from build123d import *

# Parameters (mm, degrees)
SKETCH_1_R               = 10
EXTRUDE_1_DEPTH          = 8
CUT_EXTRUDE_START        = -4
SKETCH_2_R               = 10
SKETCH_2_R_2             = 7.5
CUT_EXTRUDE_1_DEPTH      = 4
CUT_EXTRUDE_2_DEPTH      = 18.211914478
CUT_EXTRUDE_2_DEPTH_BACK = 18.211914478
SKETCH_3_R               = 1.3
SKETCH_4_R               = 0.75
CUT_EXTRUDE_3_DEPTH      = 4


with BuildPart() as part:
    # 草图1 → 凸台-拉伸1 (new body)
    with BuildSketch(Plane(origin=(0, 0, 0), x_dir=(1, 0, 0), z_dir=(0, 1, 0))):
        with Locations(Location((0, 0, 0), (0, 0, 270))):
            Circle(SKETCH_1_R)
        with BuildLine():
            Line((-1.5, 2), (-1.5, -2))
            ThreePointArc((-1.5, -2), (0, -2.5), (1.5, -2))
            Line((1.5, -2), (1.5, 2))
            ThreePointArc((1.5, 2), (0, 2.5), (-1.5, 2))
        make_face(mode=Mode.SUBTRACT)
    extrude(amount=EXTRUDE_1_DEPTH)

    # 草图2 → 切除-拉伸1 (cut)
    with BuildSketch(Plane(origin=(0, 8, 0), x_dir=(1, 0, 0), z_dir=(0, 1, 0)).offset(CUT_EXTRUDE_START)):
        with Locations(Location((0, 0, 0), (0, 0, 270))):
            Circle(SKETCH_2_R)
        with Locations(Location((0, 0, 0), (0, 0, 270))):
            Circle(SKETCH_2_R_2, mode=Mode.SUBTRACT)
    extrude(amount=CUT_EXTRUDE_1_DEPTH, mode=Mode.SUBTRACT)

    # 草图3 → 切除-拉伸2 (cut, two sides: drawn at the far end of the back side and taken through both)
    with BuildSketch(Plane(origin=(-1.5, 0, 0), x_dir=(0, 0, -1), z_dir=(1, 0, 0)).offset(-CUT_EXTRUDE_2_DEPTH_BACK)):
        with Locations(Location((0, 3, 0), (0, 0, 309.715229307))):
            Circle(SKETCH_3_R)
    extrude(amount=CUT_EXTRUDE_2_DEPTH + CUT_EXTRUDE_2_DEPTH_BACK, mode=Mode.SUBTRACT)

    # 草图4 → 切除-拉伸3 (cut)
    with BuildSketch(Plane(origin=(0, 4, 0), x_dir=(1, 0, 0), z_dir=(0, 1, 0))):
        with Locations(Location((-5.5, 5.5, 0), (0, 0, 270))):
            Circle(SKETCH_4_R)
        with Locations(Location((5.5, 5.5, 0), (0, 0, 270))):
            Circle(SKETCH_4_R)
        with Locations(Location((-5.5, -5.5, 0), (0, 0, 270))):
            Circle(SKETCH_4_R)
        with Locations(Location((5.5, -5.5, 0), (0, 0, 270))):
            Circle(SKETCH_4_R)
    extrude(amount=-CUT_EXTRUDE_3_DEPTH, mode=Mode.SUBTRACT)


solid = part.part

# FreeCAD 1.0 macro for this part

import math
import FreeCAD as App
import Part
import Sketcher
from FreeCAD import Vector
Q = App.Units.Quantity

doc = App.newDocument("Part")
body = doc.addObject("PartDesign::Body", "Body")

# Sketch on XZ plane
sketch1 = body.newObject("Sketcher::SketchObject", "Sketch")
sketch1.AttachmentSupport = (doc.getObject("XZ_Plane"), [""])
sketch1.MapMode = "FlatFace"
sketch1.addGeometry([
    Part.Circle(Vector(0, 0, 0), Vector(0, 0, 1), 10),  # 0
    Part.LineSegment(Vector(-1.5, 2, 0), Vector(-1.5, -2, 0)),  # 1
    Part.ArcOfCircle(Part.Circle(Vector(0, 0, 0), Vector(0, 0, 1), 2.5), math.radians(-127), math.radians(-53)),  # 2
    Part.LineSegment(Vector(1.5, -2, 0), Vector(1.5, 2, 0)),  # 3
    Part.ArcOfCircle(Part.Circle(Vector(0, 0, 0), Vector(0, 0, 1), 2.5), math.radians(53), math.radians(127)),  # 4
], False)
sketch1.addConstraint([
    Sketcher.Constraint("Coincident", 1, 2, 2, 1),
    Sketcher.Constraint("Coincident", 2, 2, 3, 1),
    Sketcher.Constraint("Coincident", 3, 2, 4, 1),
    Sketcher.Constraint("Coincident", 4, 2, 1, 1),
    Sketcher.Constraint("Vertical", 1),
    Sketcher.Constraint("Vertical", 3),
    Sketcher.Constraint("Coincident", 0, 3, -1, 1),
    Sketcher.Constraint("Coincident", 2, 3, -1, 1),
    Sketcher.Constraint("Coincident", 4, 3, -1, 1),
    Sketcher.Constraint("Equal", 2, 4),
    Sketcher.Constraint("Horizontal", 1, 2, 2, 2),
    Sketcher.Constraint("Diameter", 0, Q("20 mm")),
    Sketcher.Constraint("Radius", 2, Q("2.5 mm")),
    Sketcher.Constraint("DistanceY", 1, 2, 1, 1, Q("4 mm")),
])
pad1 = body.newObject("PartDesign::Pad", "Pad")
pad1.Profile = sketch1
pad1.Length = 8
pad1.Reversed = True

# Sketch on XZ plane
sketch2 = body.newObject("Sketcher::SketchObject", "Sketch001")
sketch2.AttachmentSupport = (doc.getObject("XZ_Plane"), [""])
sketch2.MapMode = "FlatFace"
sketch2.AttachmentOffset = App.Placement(Vector(0, 0, -4), App.Rotation())
sketch2.addGeometry([
    Part.Circle(Vector(0, 0, 0), Vector(0, 0, 1), 10),
    Part.Circle(Vector(0, 0, 0), Vector(0, 0, 1), 8),
], False)
sketch2.addConstraint([
    Sketcher.Constraint("Coincident", 0, 3, -1, 1),
    Sketcher.Constraint("Coincident", 1, 3, -1, 1),
    Sketcher.Constraint("Diameter", 0, Q("20 mm")),
    Sketcher.Constraint("Diameter", 1, Q("15 mm")),
])
pocket1 = body.newObject("PartDesign::Pocket", "Pocket")
pocket1.Profile = sketch2
pocket1.Length = 4

# Sketch on YZ plane
sketch3 = body.newObject("Sketcher::SketchObject", "Sketch002")
sketch3.AttachmentSupport = (doc.getObject("YZ_Plane"), [""])
sketch3.MapMode = "FlatFace"
sketch3.AttachmentOffset = App.Placement(Vector(0, 0, -1.5), App.Rotation())
sketch3.addGeometry(Part.Circle(Vector(3, 0, 0), Vector(0, 0, 1), 1.3), False)
sketch3.addConstraint([
    Sketcher.Constraint("PointOnObject", 0, 3, -1),
    Sketcher.Constraint("Diameter", 0, Q("2.6 mm")),
    Sketcher.Constraint("DistanceX", -1, 1, 0, 3, Q("3 mm")),
])
pocket2 = body.newObject("PartDesign::Pocket", "Pocket001")
pocket2.Profile = sketch3
pocket2.Type = "ThroughAll"
pocket2.Midplane = True

# Sketch on XZ plane
sketch4 = body.newObject("Sketcher::SketchObject", "Sketch003")
sketch4.AttachmentSupport = (doc.getObject("XZ_Plane"), [""])
sketch4.MapMode = "FlatFace"
sketch4.AttachmentOffset = App.Placement(Vector(0, 0, -4), App.Rotation())
sketch4.addGeometry([
    Part.Circle(Vector(-5.5, -5.5, 0), Vector(0, 0, 1), 0.8),
    Part.Circle(Vector(5.5, -5.5, 0), Vector(0, 0, 1), 0.8),
    Part.Circle(Vector(-5.5, 5.5, 0), Vector(0, 0, 1), 0.8),
    Part.Circle(Vector(5.5, 5.5, 0), Vector(0, 0, 1), 0.8),
], False)
sketch4.addConstraint([
    Sketcher.Constraint("Equal", 0, 1),
    Sketcher.Constraint("Equal", 1, 2),
    Sketcher.Constraint("Equal", 2, 3),
    Sketcher.Constraint("Symmetric", 1, 3, 2, 3, -1, 1),
    Sketcher.Constraint("Symmetric", 0, 3, 3, 3, -1, 1),
    Sketcher.Constraint("Symmetric", 0, 3, 1, 3, -2),
    Sketcher.Constraint("Diameter", 0, Q("1.5 mm")),
    Sketcher.Constraint("DistanceX", 0, 3, 1, 3, Q("11 mm")),
    Sketcher.Constraint("DistanceY", 0, 3, 2, 3, Q("11 mm")),
])
pocket3 = body.newObject("PartDesign::Pocket", "Pocket002")
pocket3.Profile = sketch4
pocket3.Length = 4
pocket3.Reversed = True

doc.recompute()
